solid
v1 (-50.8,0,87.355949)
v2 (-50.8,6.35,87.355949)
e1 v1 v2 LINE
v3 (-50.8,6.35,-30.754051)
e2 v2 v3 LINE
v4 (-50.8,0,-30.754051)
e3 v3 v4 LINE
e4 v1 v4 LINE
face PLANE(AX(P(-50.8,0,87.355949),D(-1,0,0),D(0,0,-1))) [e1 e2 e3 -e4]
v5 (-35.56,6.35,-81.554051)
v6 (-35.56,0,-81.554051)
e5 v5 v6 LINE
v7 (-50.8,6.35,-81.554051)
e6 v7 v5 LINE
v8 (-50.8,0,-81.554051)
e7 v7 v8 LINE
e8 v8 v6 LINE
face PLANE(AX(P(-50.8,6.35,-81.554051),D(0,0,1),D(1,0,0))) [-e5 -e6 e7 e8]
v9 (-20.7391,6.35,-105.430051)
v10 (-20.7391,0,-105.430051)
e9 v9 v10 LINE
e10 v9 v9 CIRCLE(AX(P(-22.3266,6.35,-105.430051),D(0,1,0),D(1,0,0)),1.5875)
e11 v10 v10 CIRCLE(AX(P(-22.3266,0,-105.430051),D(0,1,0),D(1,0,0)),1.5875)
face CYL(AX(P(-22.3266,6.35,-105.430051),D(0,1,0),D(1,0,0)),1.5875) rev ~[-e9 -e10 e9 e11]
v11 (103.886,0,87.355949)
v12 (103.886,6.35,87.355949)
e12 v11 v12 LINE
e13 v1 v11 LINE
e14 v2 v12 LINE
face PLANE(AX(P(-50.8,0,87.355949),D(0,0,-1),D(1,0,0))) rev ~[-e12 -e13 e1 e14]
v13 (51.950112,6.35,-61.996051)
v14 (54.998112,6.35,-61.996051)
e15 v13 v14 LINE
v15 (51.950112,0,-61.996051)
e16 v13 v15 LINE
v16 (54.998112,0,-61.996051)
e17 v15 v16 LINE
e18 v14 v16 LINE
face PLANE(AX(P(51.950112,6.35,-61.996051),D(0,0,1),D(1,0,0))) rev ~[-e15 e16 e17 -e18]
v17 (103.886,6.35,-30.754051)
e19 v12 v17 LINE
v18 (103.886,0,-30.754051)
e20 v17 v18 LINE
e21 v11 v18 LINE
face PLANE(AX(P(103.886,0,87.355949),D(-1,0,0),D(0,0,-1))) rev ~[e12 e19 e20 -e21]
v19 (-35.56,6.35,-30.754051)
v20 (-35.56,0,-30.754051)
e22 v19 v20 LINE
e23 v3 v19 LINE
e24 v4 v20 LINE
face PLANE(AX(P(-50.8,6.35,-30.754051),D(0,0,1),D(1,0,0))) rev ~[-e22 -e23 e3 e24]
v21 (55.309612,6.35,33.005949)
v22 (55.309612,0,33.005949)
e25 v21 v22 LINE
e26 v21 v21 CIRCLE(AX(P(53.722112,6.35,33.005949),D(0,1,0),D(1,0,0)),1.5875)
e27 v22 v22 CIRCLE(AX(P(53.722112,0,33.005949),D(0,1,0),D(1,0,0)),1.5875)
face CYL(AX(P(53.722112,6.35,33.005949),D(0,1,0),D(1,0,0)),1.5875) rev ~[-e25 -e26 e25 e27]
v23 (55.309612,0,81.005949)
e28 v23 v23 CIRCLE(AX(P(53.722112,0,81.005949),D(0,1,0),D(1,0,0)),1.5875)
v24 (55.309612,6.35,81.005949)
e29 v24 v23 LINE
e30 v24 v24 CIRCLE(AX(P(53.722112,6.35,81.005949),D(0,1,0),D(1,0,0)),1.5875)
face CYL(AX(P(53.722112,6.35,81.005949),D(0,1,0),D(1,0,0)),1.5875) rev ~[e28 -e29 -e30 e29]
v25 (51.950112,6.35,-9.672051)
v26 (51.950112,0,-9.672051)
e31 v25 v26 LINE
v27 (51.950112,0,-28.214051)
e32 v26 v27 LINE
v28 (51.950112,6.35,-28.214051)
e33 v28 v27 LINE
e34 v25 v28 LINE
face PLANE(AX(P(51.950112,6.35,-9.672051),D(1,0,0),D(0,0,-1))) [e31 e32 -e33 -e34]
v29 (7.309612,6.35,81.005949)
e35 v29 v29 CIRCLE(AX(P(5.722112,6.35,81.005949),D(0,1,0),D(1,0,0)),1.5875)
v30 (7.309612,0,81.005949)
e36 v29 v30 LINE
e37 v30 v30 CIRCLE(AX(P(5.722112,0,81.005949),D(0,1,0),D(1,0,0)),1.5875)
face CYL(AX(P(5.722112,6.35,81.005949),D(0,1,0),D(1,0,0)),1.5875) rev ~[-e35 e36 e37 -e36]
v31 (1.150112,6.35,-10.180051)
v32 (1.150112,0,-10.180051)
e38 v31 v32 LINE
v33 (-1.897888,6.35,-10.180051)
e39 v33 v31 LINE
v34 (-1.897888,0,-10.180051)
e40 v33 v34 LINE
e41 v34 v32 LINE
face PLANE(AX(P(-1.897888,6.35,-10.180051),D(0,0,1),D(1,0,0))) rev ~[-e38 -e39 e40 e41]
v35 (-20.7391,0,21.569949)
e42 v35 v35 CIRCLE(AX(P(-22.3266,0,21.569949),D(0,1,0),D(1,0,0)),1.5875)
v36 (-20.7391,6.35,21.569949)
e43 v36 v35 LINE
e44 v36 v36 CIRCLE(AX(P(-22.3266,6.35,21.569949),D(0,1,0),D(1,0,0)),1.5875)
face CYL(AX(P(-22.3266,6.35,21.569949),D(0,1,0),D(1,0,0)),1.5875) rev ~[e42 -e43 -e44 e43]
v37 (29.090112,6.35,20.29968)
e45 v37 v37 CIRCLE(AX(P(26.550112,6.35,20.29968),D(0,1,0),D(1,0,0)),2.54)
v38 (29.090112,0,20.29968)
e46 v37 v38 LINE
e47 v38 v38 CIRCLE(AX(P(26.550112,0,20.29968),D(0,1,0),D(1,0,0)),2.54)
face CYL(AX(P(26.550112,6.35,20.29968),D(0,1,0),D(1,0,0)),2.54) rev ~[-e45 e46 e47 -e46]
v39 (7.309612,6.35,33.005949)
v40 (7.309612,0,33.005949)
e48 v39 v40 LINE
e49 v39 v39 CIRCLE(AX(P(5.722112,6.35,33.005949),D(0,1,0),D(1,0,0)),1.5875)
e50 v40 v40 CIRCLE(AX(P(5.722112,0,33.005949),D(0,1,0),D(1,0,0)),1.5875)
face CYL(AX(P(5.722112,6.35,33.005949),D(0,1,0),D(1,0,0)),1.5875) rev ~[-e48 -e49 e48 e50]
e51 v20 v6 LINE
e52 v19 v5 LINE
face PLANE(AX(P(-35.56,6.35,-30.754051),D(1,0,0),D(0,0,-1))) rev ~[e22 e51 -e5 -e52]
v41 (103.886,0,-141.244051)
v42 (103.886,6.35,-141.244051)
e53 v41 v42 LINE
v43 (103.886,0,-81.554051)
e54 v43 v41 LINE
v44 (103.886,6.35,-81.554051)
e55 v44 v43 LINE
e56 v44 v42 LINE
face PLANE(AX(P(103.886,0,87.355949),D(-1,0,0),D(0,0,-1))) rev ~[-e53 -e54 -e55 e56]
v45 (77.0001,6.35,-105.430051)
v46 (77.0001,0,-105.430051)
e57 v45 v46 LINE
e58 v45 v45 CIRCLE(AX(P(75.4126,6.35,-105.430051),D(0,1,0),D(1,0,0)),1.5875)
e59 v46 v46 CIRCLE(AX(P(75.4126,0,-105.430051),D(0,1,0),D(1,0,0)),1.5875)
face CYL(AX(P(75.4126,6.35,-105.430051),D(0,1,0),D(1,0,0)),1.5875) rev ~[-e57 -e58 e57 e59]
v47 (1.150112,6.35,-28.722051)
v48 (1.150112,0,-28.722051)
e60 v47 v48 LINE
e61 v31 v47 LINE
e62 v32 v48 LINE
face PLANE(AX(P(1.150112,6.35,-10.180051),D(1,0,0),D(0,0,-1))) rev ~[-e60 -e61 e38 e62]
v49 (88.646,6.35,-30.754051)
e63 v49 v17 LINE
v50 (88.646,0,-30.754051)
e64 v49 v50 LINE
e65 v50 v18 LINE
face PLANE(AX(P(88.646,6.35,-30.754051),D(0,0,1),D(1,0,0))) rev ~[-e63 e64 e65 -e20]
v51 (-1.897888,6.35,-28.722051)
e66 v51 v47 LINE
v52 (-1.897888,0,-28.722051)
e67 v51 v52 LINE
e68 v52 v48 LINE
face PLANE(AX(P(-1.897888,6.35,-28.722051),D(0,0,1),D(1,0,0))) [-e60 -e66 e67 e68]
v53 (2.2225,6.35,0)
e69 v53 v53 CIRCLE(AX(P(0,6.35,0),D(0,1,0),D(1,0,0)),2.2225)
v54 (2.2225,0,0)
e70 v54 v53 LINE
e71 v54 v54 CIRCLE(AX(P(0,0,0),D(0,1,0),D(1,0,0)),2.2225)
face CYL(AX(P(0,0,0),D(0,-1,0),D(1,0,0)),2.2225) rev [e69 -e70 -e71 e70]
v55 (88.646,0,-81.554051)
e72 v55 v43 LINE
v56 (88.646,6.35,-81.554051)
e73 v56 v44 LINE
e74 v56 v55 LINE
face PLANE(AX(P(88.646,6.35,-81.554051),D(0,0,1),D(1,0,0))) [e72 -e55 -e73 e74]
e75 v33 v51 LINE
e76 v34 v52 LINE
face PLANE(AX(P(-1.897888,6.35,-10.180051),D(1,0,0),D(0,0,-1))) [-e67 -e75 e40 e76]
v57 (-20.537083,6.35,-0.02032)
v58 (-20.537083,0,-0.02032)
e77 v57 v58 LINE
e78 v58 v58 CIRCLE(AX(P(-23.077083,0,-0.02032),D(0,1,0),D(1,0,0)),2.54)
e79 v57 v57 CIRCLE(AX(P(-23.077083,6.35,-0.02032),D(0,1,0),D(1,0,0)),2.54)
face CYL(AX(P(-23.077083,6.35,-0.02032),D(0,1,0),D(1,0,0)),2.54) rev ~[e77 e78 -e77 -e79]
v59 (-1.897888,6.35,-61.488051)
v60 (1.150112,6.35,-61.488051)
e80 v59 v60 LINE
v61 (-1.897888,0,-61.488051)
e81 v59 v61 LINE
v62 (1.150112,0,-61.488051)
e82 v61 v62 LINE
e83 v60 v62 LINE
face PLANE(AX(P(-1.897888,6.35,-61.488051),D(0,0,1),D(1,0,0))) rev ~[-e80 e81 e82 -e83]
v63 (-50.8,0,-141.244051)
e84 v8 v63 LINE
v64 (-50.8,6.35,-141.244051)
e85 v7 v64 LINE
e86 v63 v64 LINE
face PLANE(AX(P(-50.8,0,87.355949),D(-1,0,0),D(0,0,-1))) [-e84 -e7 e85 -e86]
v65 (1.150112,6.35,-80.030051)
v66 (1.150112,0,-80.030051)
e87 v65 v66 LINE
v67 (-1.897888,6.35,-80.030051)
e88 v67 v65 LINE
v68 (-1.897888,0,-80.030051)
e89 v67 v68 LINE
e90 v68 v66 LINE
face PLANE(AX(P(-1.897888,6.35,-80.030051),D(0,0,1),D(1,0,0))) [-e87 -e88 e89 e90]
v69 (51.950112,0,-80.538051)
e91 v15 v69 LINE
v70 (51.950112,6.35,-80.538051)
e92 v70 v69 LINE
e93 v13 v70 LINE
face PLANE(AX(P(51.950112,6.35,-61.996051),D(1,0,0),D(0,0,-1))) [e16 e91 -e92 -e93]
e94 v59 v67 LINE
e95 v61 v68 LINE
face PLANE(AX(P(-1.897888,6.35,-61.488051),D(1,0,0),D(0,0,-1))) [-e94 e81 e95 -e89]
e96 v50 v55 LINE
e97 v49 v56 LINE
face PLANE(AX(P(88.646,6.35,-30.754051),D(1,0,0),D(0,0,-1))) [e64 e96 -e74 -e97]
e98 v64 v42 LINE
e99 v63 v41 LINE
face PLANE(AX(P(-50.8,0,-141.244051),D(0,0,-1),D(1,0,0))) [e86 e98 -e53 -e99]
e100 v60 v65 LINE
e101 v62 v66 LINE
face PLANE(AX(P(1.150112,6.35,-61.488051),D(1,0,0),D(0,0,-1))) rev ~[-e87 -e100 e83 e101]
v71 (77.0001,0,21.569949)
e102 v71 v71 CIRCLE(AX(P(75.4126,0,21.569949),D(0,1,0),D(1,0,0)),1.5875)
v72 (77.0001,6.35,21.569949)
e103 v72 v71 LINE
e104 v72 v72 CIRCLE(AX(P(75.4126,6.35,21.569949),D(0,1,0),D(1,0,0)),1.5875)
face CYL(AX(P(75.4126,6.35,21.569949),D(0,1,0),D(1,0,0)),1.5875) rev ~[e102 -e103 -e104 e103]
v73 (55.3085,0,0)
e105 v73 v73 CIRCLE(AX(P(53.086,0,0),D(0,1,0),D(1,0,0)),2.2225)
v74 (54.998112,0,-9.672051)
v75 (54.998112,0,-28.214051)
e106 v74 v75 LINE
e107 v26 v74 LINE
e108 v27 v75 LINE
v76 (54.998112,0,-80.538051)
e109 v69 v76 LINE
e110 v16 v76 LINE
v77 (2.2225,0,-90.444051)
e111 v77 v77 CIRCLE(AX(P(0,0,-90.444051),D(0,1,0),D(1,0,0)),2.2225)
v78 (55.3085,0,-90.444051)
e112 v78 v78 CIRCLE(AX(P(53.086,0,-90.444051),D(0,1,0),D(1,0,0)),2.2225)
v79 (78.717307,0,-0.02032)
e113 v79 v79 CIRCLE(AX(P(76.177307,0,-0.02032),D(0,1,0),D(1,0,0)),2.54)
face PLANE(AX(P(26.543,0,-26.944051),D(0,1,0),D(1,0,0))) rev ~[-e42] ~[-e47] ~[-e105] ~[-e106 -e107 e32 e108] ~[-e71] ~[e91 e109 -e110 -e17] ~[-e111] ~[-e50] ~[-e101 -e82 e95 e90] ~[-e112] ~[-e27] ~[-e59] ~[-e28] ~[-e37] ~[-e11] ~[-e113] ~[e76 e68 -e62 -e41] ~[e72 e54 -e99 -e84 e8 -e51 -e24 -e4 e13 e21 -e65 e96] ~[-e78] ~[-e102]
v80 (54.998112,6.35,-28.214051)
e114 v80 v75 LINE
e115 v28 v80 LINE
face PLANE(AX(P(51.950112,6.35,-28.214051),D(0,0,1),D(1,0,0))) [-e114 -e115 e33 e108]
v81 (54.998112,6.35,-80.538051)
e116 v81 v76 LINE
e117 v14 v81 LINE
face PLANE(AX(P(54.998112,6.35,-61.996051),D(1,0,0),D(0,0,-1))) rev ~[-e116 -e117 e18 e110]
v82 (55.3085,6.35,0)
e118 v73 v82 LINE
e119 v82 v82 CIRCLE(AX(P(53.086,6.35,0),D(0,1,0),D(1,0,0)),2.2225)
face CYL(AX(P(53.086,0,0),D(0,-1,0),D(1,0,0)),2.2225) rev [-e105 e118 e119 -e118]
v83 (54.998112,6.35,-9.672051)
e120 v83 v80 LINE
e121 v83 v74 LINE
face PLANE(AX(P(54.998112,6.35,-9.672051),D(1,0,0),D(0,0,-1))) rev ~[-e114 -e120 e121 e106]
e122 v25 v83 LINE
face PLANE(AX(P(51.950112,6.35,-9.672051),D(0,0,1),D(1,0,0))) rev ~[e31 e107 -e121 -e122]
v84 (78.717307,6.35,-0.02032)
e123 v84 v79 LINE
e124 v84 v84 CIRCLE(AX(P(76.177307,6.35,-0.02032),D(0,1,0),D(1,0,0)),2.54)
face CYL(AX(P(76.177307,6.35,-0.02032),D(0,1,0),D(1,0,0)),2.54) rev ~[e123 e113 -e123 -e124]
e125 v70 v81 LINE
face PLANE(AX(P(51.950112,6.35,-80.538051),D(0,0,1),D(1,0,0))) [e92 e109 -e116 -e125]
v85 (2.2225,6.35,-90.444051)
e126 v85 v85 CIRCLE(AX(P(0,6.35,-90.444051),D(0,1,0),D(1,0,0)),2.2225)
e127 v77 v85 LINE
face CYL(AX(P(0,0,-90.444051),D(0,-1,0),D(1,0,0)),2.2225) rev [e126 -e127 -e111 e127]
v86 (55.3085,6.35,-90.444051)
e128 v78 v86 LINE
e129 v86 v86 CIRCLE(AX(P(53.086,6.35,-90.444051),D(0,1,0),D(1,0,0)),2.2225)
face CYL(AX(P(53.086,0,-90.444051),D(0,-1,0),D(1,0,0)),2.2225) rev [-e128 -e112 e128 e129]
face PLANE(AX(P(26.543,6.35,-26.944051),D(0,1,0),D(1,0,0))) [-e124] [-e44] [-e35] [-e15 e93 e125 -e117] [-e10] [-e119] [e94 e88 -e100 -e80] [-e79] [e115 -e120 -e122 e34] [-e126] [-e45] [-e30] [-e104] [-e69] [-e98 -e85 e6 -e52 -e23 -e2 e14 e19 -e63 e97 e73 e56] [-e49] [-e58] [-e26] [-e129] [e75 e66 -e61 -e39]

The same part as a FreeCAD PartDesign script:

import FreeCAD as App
import Part
import Sketcher
from FreeCAD import Vector
Q = App.Units.Quantity


def add_polygon(sketch, points):
    """Adds a closed chain of lines whose ends are joined by coincident constraints."""
    first, n = sketch.GeometryCount, len(points)
    for a, b in zip(points, points[1:] + points[:1]):
        sketch.addGeometry(Part.LineSegment(App.Vector(*a, 0), App.Vector(*b, 0)), False)
    for i in range(n):
        sketch.addConstraint(Sketcher.Constraint("Coincident", first + i, 2, first + (i + 1) % n, 1))

doc = App.newDocument("Part")
body = doc.addObject("PartDesign::Body", "Body")

sketch1 = body.newObject("Sketcher::SketchObject", "Sketch")
sketch1.AttachmentSupport = (doc.getObject("XZ_Plane"), [""])
sketch1.MapMode = "FlatFace"
add_polygon(sketch1, [(-51, -141), (-51, 87), (104, 87), (104, -141)])
sketch1.addConstraint([
    Sketcher.Constraint("Vertical", 0),
    Sketcher.Constraint("Horizontal", 1),
    Sketcher.Constraint("Vertical", 2),
    Sketcher.Constraint("Horizontal", 3),
    Sketcher.Constraint("DistanceY", 0, 1, 0, 2, Q("9 in")),
    Sketcher.Constraint("DistanceX", 0, 2, -1, 1, Q("2 in")),
    Sketcher.Constraint("DistanceX", 1, 1, 1, 2, Q("6.09 in")),
    Sketcher.Constraint("DistanceY", -1, 1, 0, 2, 87.355949),
])
pad1 = body.newObject("PartDesign::Pad", "Pad")
pad1.Profile = sketch1
pad1.Length = Q("0.25 in")
pad1.Reversed = True

sketch2 = body.newObject("Sketcher::SketchObject", "Sketch001")
sketch2.AttachmentSupport = (doc.getObject("XZ_Plane"), [""])
sketch2.MapMode = "FlatFace"
sketch2.addGeometry([
    Part.Circle(Vector(0, -90.4, 0), Vector(0, 0, 1), 2.2),
    Part.Circle(Vector(53.1, -90.4, 0), Vector(0, 0, 1), 2.2),
    Part.Circle(Vector(0, 0, 0), Vector(0, 0, 1), 2.2),
    Part.Circle(Vector(53.1, 0, 0), Vector(0, 0, 1), 2.2),
], False)
sketch2.addConstraint([
    Sketcher.Constraint("Coincident", 2, 3, -1, 1),
    Sketcher.Constraint("Equal", 0, 1),
    Sketcher.Constraint("Equal", 1, 2),
    Sketcher.Constraint("Equal", 2, 3),
    Sketcher.Constraint("PointOnObject", 0, 3, -2),
    Sketcher.Constraint("PointOnObject", 3, 3, -1),
    Sketcher.Constraint("Horizontal", 0, 3, 1, 3),
    Sketcher.Constraint("Vertical", 1, 3, 3, 3),
    Sketcher.Constraint("Diameter", 0, Q("0.175 in")),
    Sketcher.Constraint("DistanceX", -1, 1, 1, 3, Q("2.09 in")),
    Sketcher.Constraint("DistanceY", 0, 3, -1, 1, 90.444051),
])
pocket1 = body.newObject("PartDesign::Pocket", "Pocket")
pocket1.Profile = sketch2
pocket1.Length = Q("0.25 in")

sketch3 = body.newObject("Sketcher::SketchObject", "Sketch002")
sketch3.AttachmentSupport = (doc.getObject("XZ_Plane"), [""])
sketch3.MapMode = "FlatFace"
sketch3.AttachmentOffset = App.Placement(Vector(0, 0, -0.25 * 25.4), App.Rotation())
add_polygon(sketch3, [(89, -82), (89, -31), (104, -31), (104, -82)])
add_polygon(sketch3, [(-51, -82), (-51, -31), (-36, -31), (-36, -82)])
sketch3.addConstraint([
    Sketcher.Constraint("Vertical", 0),
    Sketcher.Constraint("Horizontal", 1),
    Sketcher.Constraint("Vertical", 2),
    Sketcher.Constraint("Horizontal", 3),
    Sketcher.Constraint("Vertical", 4),
    Sketcher.Constraint("Horizontal", 5),
    Sketcher.Constraint("Vertical", 6),
    Sketcher.Constraint("Horizontal", 7),
    Sketcher.Constraint("Horizontal", 1, 2, 4, 2),
    Sketcher.Constraint("Horizontal", 3, 2, 6, 2),
    Sketcher.Constraint("Equal", 3, 5),
    Sketcher.Constraint("DistanceY", 0, 1, 0, 2, Q("2 in")),
    Sketcher.Constraint("DistanceX", 1, 1, 1, 2, Q("0.6 in")),
    Sketcher.Constraint("DistanceX", 4, 2, -1, 1, Q("2 in")),
    Sketcher.Constraint("DistanceX", -1, 1, 0, 2, Q("3.49 in")),
    Sketcher.Constraint("DistanceY", 0, 2, -1, 1, 30.754051),
])
pocket2 = body.newObject("PartDesign::Pocket", "Pocket001")
pocket2.Profile = sketch3
pocket2.Length = Q("0.25 in")
pocket2.Reversed = True

sketch4 = body.newObject("Sketcher::SketchObject", "Sketch003")
sketch4.AttachmentSupport = (doc.getObject("XZ_Plane"), [""])
sketch4.MapMode = "FlatFace"
sketch4.AttachmentOffset = App.Placement(Vector(0, 0, -0.25 * 25.4), App.Rotation())
sketch4.addGeometry([
    Part.Circle(Vector(26.6, 20.3, 0), Vector(0, 0, 1), 2.5),
    Part.Circle(Vector(-23.1, 0, 0), Vector(0, 0, 1), 2.5),
    Part.Circle(Vector(76.2, 0, 0), Vector(0, 0, 1), 2.5),
], False)
sketch4.addConstraint([
    Sketcher.Constraint("Equal", 0, 1),
    Sketcher.Constraint("Equal", 1, 2),
    Sketcher.Constraint("Horizontal", 1, 3, 2, 3),
    Sketcher.Constraint("Diameter", 0, Q("0.2 in")),
    Sketcher.Constraint("DistanceY", 1, 3, 0, 3, Q("0.8 in")),
    Sketcher.Constraint("DistanceY", -1, 1, 0, 3, Q("0.7992 in")),
    Sketcher.Constraint("DistanceX", -1, 1, 0, 3, 26.550112),
    Sketcher.Constraint("DistanceX", 1, 3, 2, 3, 99.25439),
    Sketcher.Constraint("DistanceX", 1, 3, -1, 1, 23.077083),
])
pocket3 = body.newObject("PartDesign::Pocket", "Pocket002")
pocket3.Profile = sketch4
pocket3.Length = Q("0.7 in")
pocket3.Reversed = True

sketch5 = body.newObject("Sketcher::SketchObject", "Sketch004")
sketch5.AttachmentSupport = (doc.getObject("XZ_Plane"), [""])
sketch5.MapMode = "FlatFace"
sketch5.AttachmentOffset = App.Placement(Vector(0, 0, -0.25 * 25.4), App.Rotation())
sketch5.addGeometry([
    Part.Circle(Vector(53.7, 33, 0), Vector(0, 0, 1), 1.6),
    Part.Circle(Vector(5.7, 33, 0), Vector(0, 0, 1), 1.6),
    Part.Circle(Vector(53.7, 81, 0), Vector(0, 0, 1), 1.6),
    Part.Circle(Vector(5.7, 81, 0), Vector(0, 0, 1), 1.6),
], False)
sketch5.addConstraint([
    Sketcher.Constraint("Equal", 0, 1),
    Sketcher.Constraint("Equal", 1, 2),
    Sketcher.Constraint("Equal", 2, 3),
    Sketcher.Constraint("Horizontal", 0, 3, 1, 3),
    Sketcher.Constraint("Horizontal", 2, 3, 3, 3),
    Sketcher.Constraint("Vertical", 0, 3, 2, 3),
    Sketcher.Constraint("Vertical", 1, 3, 3, 3),
    Sketcher.Constraint("Diameter", 0, Q("0.125 in")),
    Sketcher.Constraint("DistanceX", 1, 3, 0, 3, 48.0),
    Sketcher.Constraint("DistanceY", 0, 3, 2, 3, 48.0),
    Sketcher.Constraint("DistanceY", -1, 1, 0, 3, 33.005949),
    Sketcher.Constraint("DistanceX", -1, 1, 0, 3, 53.722112),
])
pocket4 = body.newObject("PartDesign::Pocket", "Pocket003")
pocket4.Profile = sketch5
pocket4.Length = Q("0.7 in")
pocket4.Reversed = True

sketch6 = body.newObject("Sketcher::SketchObject", "Sketch005")
sketch6.AttachmentSupport = (doc.getObject("XZ_Plane"), [""])
sketch6.MapMode = "FlatFace"
sketch6.AttachmentOffset = App.Placement(Vector(0, 0, -0.25 * 25.4), App.Rotation())
sketch6.addGeometry([
    Part.Circle(Vector(-22.3, -105.4, 0), Vector(0, 0, 1), 1.6),
    Part.Circle(Vector(-22.3, 21.6, 0), Vector(0, 0, 1), 1.6),
    Part.Circle(Vector(75.4, -105.4, 0), Vector(0, 0, 1), 1.6),
    Part.Circle(Vector(75.4, 21.6, 0), Vector(0, 0, 1), 1.6),
], False)
sketch6.addConstraint([
    Sketcher.Constraint("Equal", 0, 1),
    Sketcher.Constraint("Equal", 1, 2),
    Sketcher.Constraint("Equal", 2, 3),
    Sketcher.Constraint("Horizontal", 0, 3, 2, 3),
    Sketcher.Constraint("Horizontal", 1, 3, 3, 3),
    Sketcher.Constraint("Vertical", 0, 3, 1, 3),
    Sketcher.Constraint("Vertical", 2, 3, 3, 3),
    Sketcher.Constraint("Diameter", 0, Q("0.125 in")),
    Sketcher.Constraint("DistanceY", 0, 3, 1, 3, Q("5 in")),
    Sketcher.Constraint("DistanceX", 0, 3, -1, 1, Q("0.879 in")),
    Sketcher.Constraint("DistanceX", -1, 1, 2, 3, Q("2.969 in")),
    Sketcher.Constraint("DistanceY", 0, 3, -1, 1, 105.430051),
])
pocket5 = body.newObject("PartDesign::Pocket", "Pocket004")
pocket5.Profile = sketch6
pocket5.Length = Q("0.4 in")
pocket5.Reversed = True

sketch7 = body.newObject("Sketcher::SketchObject", "Sketch006")
sketch7.AttachmentSupport = (doc.getObject("XZ_Plane"), [""])
sketch7.MapMode = "FlatFace"
sketch7.AttachmentOffset = App.Placement(Vector(0, 0, -0.25 * 25.4), App.Rotation())
add_polygon(sketch7, [(-1.9, -28.7), (-1.9, -10.2), (1.2, -10.2), (1.2, -28.7)])
add_polygon(sketch7, [(-1.9, -80), (-1.9, -61.5), (1.2, -61.5), (1.2, -80)])
add_polygon(sketch7, [(52, -80.5), (52, -62), (55, -62), (55, -80.5)])
add_polygon(sketch7, [(52, -28.2), (52, -9.7), (55, -9.7), (55, -28.2)])
sketch7.addConstraint([
    Sketcher.Constraint("Vertical", 0),
    Sketcher.Constraint("Horizontal", 1),
    Sketcher.Constraint("Vertical", 2),
    Sketcher.Constraint("Horizontal", 3),
    Sketcher.Constraint("Vertical", 4),
    Sketcher.Constraint("Horizontal", 5),
    Sketcher.Constraint("Vertical", 6),
    Sketcher.Constraint("Horizontal", 7),
    Sketcher.Constraint("Vertical", 8),
    Sketcher.Constraint("Horizontal", 9),
    Sketcher.Constraint("Vertical", 10),
    Sketcher.Constraint("Horizontal", 11),
    Sketcher.Constraint("Vertical", 12),
    Sketcher.Constraint("Horizontal", 13),
    Sketcher.Constraint("Vertical", 14),
    Sketcher.Constraint("Horizontal", 15),
    Sketcher.Constraint("Vertical", 3, 2, 4, 2),
    Sketcher.Constraint("Vertical", 2, 2, 5, 2),
    Sketcher.Constraint("Vertical", 11, 2, 12, 2),
    Sketcher.Constraint("Vertical", 10, 2, 13, 2),
    Sketcher.Constraint("Equal", 7, 9),
    Sketcher.Constraint("Equal", 2, 4),
    Sketcher.Constraint("Equal", 6, 8),
    Sketcher.Constraint("Equal", 10, 12),
    Sketcher.Constraint("DistanceX", 5, 2, 8, 2, Q("2 in")),
    Sketcher.Constraint("DistanceX", 1, 1, 1, 2, Q("0.12 in")),
    Sketcher.Constraint("DistanceY", 0, 1, 0, 2, Q("0.73 in")),
    Sketcher.Constraint("DistanceY", 4, 2, 3, 2, Q("1.29 in")),
    Sketcher.Constraint("DistanceY", 8, 2, 5, 2, Q("0.02 in")),
    Sketcher.Constraint("DistanceY", 1, 2, 12, 2, Q("0.02 in")),
    Sketcher.Constraint("DistanceY", 0, 2, -1, 1, 10.180051),
    Sketcher.Constraint("DistanceX", -1, 1, 8, 2, 51.950112),
])
pocket6 = body.newObject("PartDesign::Pocket", "Pocket005")
pocket6.Profile = sketch7
pocket6.Length = Q("0.325 in")
pocket6.Reversed = True

doc.recompute()
